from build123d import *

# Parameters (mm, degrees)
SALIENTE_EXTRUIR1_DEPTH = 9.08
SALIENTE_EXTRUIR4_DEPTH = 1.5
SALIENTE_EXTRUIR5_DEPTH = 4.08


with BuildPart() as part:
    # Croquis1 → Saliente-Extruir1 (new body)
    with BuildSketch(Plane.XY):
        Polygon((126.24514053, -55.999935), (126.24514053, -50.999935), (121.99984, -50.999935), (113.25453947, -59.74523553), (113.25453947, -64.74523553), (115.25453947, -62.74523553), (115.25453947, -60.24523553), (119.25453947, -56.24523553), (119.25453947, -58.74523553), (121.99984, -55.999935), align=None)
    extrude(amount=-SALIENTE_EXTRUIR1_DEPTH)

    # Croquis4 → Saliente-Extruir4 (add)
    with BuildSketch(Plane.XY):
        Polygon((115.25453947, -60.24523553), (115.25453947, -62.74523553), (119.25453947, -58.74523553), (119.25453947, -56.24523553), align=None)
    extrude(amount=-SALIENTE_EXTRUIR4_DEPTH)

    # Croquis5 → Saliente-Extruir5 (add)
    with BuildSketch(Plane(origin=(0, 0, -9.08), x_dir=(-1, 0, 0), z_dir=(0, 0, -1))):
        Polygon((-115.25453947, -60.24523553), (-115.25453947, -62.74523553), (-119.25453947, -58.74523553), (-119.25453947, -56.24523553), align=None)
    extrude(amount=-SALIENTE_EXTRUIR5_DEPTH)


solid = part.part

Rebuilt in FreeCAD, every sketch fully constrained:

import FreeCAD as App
import Part
import Sketcher
from FreeCAD import Vector
Q = App.Units.Quantity

doc = App.newDocument("Part")
params = doc.addObject("Spreadsheet::Sheet", "Params")
for row, (alias, value) in enumerate([
    ("sketch1_height", "5 mm"),
    ("sketch1_height2", "2.5 mm"),
    ("pad1_length", "9.08 mm"),
    ("sketch2_height", "2.5 mm"),
    ("pad2_length", "1.5 mm"),
    ("sketch3_height", "2.5 mm"),
    ("pad3_length", "4.08 mm"),
], start=1):
    params.set(f"A{row}", alias)
    params.set(f"B{row}", "=" + value)
    params.setAlias(f"B{row}", alias)

body = doc.addObject("PartDesign::Body", "Body")

# Sketch on XY plane
sketch1 = body.newObject("Sketcher::SketchObject", "Sketch")
sketch1.AttachmentSupport = (doc.getObject("XY_Plane"), [""])
sketch1.MapMode = "FlatFace"
sketch1.addGeometry([
    Part.LineSegment(Vector(126.245141, -55.999935, 0), Vector(126.245141, -50.999935, 0)),  # 0
    Part.LineSegment(Vector(126.245141, -50.999935, 0), Vector(121.99984, -50.999935, 0)),  # 1
    Part.LineSegment(Vector(121.99984, -50.999935, 0), Vector(113.254539, -59.745236, 0)),  # 2
    Part.LineSegment(Vector(113.254539, -59.745236, 0), Vector(113.254539, -64.745236, 0)),  # 3
    Part.LineSegment(Vector(113.254539, -64.745236, 0), Vector(115.254539, -62.745236, 0)),  # 4
    Part.LineSegment(Vector(115.254539, -62.745236, 0), Vector(115.254539, -60.245236, 0)),  # 5
    Part.LineSegment(Vector(115.254539, -60.245236, 0), Vector(119.254539, -56.245236, 0)),  # 6
    Part.LineSegment(Vector(119.254539, -56.245236, 0), Vector(119.254539, -58.745236, 0)),  # 7
    Part.LineSegment(Vector(119.254539, -58.745236, 0), Vector(121.99984, -55.999935, 0)),  # 8
    Part.LineSegment(Vector(121.99984, -55.999935, 0), Vector(126.245141, -55.999935, 0)),  # 9
], False)
sketch1.addConstraint([
    Sketcher.Constraint("Coincident", 0, 2, 1, 1),
    Sketcher.Constraint("Coincident", 1, 2, 2, 1),
    Sketcher.Constraint("Coincident", 2, 2, 3, 1),
    Sketcher.Constraint("Coincident", 3, 2, 4, 1),
    Sketcher.Constraint("Coincident", 4, 2, 5, 1),
    Sketcher.Constraint("Coincident", 5, 2, 6, 1),
    Sketcher.Constraint("Coincident", 6, 2, 7, 1),
    Sketcher.Constraint("Coincident", 7, 2, 8, 1),
    Sketcher.Constraint("Coincident", 8, 2, 9, 1),
    Sketcher.Constraint("Coincident", 9, 2, 0, 1),
    Sketcher.Constraint("Vertical", 0),
    Sketcher.Constraint("Horizontal", 1),
    Sketcher.Constraint("Vertical", 3),
    Sketcher.Constraint("Vertical", 5),
    Sketcher.Constraint("Vertical", 7),
    Sketcher.Constraint("Horizontal", 9),
    Sketcher.Constraint("Parallel", 2, 4),
    Sketcher.Constraint("Parallel", 4, 6),
    Sketcher.Constraint("Parallel", 6, 8),
    Sketcher.Constraint("Vertical", 1, 2, 8, 2),
    Sketcher.Constraint("Equal", 0, 3),
    Sketcher.Constraint("DistanceY", 0, 1, 0, 2, 5.0),
    Sketcher.Constraint("Angle", 2, Q("-135 deg")),
    Sketcher.Constraint("DistanceY", 5, 1, 5, 2, 2.5),
    Sketcher.Constraint("DistanceX", 3, 2, 4, 2, 2.0),
    Sketcher.Constraint("DistanceX", 5, 2, 6, 2, 4.0),
    Sketcher.Constraint("DistanceX", 1, 2, 1, 1, 4.245301),
    Sketcher.Constraint("DistanceX", 2, 2, 1, 2, 8.745301),
    Sketcher.Constraint("DistanceX", -1, 1, 0, 2, 126.245141),
    Sketcher.Constraint("DistanceY", 0, 2, -1, 1, 50.999935),
])
sketch1.setExpression("Constraints[21]", "Params.sketch1_height")
sketch1.setExpression("Constraints[23]", "Params.sketch1_height2")
pad1 = body.newObject("PartDesign::Pad", "Pad")
pad1.Profile = sketch1
pad1.setExpression("Length", "Params.pad1_length")
pad1.Reversed = True

# Sketch on XY plane
sketch2 = body.newObject("Sketcher::SketchObject", "Sketch001")
sketch2.AttachmentSupport = (doc.getObject("XY_Plane"), [""])
sketch2.MapMode = "FlatFace"
sketch2.addGeometry([
    Part.LineSegment(Vector(115.254539, -60.245236, 0), Vector(115.254539, -62.745236, 0)),
    Part.LineSegment(Vector(115.254539, -62.745236, 0), Vector(119.254539, -58.745236, 0)),
    Part.LineSegment(Vector(119.254539, -58.745236, 0), Vector(119.254539, -56.245236, 0)),
    Part.LineSegment(Vector(119.254539, -56.245236, 0), Vector(115.254539, -60.245236, 0)),
], False)
sketch2.addConstraint([
    Sketcher.Constraint("Coincident", 0, 2, 1, 1),
    Sketcher.Constraint("Coincident", 1, 2, 2, 1),
    Sketcher.Constraint("Coincident", 2, 2, 3, 1),
    Sketcher.Constraint("Coincident", 3, 2, 0, 1),
    Sketcher.Constraint("Vertical", 0),
    Sketcher.Constraint("Vertical", 2),
    Sketcher.Constraint("Parallel", 1, 3),
    Sketcher.Constraint("Angle", 1, Q("45 deg")),
    Sketcher.Constraint("DistanceY", 0, 2, 0, 1, 2.5),
    Sketcher.Constraint("DistanceX", 0, 2, 1, 2, 4.0),
    Sketcher.Constraint("DistanceX", -1, 1, 0, 2, 115.254539),
    Sketcher.Constraint("DistanceY", 0, 2, -1, 1, 62.745236),
])
sketch2.setExpression("Constraints[8]", "Params.sketch2_height")
pad2 = body.newObject("PartDesign::Pad", "Pad001")
pad2.Profile = sketch2
pad2.setExpression("Length", "Params.pad2_length")
pad2.Reversed = True

# Sketch on XY plane
sketch3 = body.newObject("Sketcher::SketchObject", "Sketch002")
sketch3.AttachmentSupport = (doc.getObject("XY_Plane"), [""])
sketch3.MapMode = "FlatFace"
sketch3.AttachmentOffset = App.Placement(Vector(0, 0, -9.08), App.Rotation())
sketch3.addGeometry([
    Part.LineSegment(Vector(115.254539, -62.745236, 0), Vector(115.254539, -60.245236, 0)),
    Part.LineSegment(Vector(115.254539, -60.245236, 0), Vector(119.254539, -56.245236, 0)),
    Part.LineSegment(Vector(119.254539, -56.245236, 0), Vector(119.254539, -58.745236, 0)),
    Part.LineSegment(Vector(119.254539, -58.745236, 0), Vector(115.254539, -62.745236, 0)),
], False)
sketch3.addConstraint([
    Sketcher.Constraint("Coincident", 0, 2, 1, 1),
    Sketcher.Constraint("Coincident", 1, 2, 2, 1),
    Sketcher.Constraint("Coincident", 2, 2, 3, 1),
    Sketcher.Constraint("Coincident", 3, 2, 0, 1),
    Sketcher.Constraint("Vertical", 0),
    Sketcher.Constraint("Vertical", 2),
    Sketcher.Constraint("Parallel", 1, 3),
    Sketcher.Constraint("Angle", 1, Q("45 deg")),
    Sketcher.Constraint("DistanceY", 0, 1, 0, 2, 2.5),
    Sketcher.Constraint("DistanceX", 0, 2, 1, 2, 4.0),
    Sketcher.Constraint("DistanceX", -1, 1, 0, 2, 115.254539),
    Sketcher.Constraint("DistanceY", 0, 2, -1, 1, 60.245236),
])
sketch3.setExpression("Constraints[8]", "Params.sketch3_height")
pad3 = body.newObject("PartDesign::Pad", "Pad002")
pad3.Profile = sketch3
pad3.setExpression("Length", "Params.pad3_length")

doc.recompute()
